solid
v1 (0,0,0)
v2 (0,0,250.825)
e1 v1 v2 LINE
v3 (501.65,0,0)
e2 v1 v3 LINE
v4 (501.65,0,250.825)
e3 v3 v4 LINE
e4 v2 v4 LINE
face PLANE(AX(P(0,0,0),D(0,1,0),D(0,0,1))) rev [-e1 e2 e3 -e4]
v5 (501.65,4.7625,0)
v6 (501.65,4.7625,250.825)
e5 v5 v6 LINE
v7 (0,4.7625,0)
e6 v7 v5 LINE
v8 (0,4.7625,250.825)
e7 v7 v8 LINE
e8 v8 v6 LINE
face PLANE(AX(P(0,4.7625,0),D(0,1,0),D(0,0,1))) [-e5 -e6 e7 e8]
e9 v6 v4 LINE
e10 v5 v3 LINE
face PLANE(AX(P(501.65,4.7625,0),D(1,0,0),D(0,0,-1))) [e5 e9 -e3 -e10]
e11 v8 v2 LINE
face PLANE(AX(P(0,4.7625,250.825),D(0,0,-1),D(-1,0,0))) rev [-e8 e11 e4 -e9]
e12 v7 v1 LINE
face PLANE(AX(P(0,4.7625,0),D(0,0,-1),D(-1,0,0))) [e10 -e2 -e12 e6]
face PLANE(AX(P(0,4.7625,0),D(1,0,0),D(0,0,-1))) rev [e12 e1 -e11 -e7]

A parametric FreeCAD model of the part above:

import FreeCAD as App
import Part
import Sketcher

V = App.Vector
Q = App.Units.Quantity


def add_polygon(sketch, points):
    """Adds a closed chain of lines whose ends are joined by coincident constraints."""
    first, n = sketch.GeometryCount, len(points)
    for a, b in zip(points, points[1:] + points[:1]):
        sketch.addGeometry(Part.LineSegment(App.Vector(*a, 0), App.Vector(*b, 0)), False)
    for i in range(n):
        sketch.addConstraint(Sketcher.Constraint("Coincident", first + i, 2, first + (i + 1) % n, 1))

doc = App.newDocument("Part")
body = doc.addObject("PartDesign::Body", "Body")

# Sketch on XZ plane
sketch1 = body.newObject("Sketcher::SketchObject", "Sketch")
sketch1.AttachmentSupport = (doc.getObject("XZ_Plane"), [""])
sketch1.MapMode = "FlatFace"
add_polygon(sketch1, [(0, 0), (0, 251), (502, 251), (502, 0)])  # lines 0-3
sketch1.addConstraint(Sketcher.Constraint("Vertical", 0))
sketch1.addConstraint(Sketcher.Constraint("Horizontal", 1))
sketch1.addConstraint(Sketcher.Constraint("Vertical", 2))
sketch1.addConstraint(Sketcher.Constraint("Horizontal", 3))
sketch1.addConstraint(Sketcher.Constraint("Coincident", 3, 2, -1, 1))
sketch1.addConstraint(Sketcher.Constraint("DistanceX", 1, 1, 1, 2, Q("19.75 in")))
sketch1.addConstraint(Sketcher.Constraint("DistanceY", 0, 1, 0, 2, Q("9.875 in")))
pad1 = body.newObject("PartDesign::Pad", "Pad")
pad1.Profile = sketch1
pad1.Length = Q("0.1875 in")
pad1.Reversed = True

doc.recompute()
